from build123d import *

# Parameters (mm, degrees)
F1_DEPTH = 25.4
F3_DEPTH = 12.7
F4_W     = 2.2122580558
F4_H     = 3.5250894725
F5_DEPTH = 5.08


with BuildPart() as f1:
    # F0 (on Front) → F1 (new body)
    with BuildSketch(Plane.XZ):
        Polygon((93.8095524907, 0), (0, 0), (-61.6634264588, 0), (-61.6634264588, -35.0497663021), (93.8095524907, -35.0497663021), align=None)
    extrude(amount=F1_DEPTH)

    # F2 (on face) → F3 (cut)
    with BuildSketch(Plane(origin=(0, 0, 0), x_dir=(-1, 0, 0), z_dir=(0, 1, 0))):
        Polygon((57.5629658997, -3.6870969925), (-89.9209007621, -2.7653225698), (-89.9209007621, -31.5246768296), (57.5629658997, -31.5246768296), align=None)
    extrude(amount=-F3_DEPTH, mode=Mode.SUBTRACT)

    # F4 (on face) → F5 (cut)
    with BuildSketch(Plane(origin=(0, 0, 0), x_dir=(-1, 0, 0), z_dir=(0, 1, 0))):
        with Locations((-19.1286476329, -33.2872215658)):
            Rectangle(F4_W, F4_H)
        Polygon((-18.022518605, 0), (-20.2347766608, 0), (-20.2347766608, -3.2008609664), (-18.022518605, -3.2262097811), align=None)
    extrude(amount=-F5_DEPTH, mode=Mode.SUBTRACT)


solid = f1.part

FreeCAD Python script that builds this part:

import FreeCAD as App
import Part
import Sketcher
Q = App.Units.Quantity

doc = App.newDocument("Part")
body = doc.addObject("PartDesign::Body", "Body")

sketch1 = body.newObject("Sketcher::SketchObject", "Sketch")
sketch1.AttachmentSupport = (doc.getObject("XZ_Plane"), [""])
sketch1.MapMode = "FlatFace"
sketch1.addGeometry([
    Part.LineSegment(App.Vector(94, 0, 0), App.Vector(-62, 0, 0)),
    Part.LineSegment(App.Vector(-62, 0, 0), App.Vector(-62, -35, 0)),
    Part.LineSegment(App.Vector(-62, -35, 0), App.Vector(94, -35, 0)),
    Part.LineSegment(App.Vector(94, -35, 0), App.Vector(94, 0, 0)),
], False)
sketch1.addConstraint([
    Sketcher.Constraint("Coincident", 0, 2, 1, 1),
    Sketcher.Constraint("Coincident", 1, 2, 2, 1),
    Sketcher.Constraint("Coincident", 2, 2, 3, 1),
    Sketcher.Constraint("Coincident", 3, 2, 0, 1),
    Sketcher.Constraint("Horizontal", 0),
    Sketcher.Constraint("Vertical", 1),
    Sketcher.Constraint("Horizontal", 2),
    Sketcher.Constraint("Vertical", 3),
    Sketcher.Constraint("PointOnObject", 0, 2, -1),
    Sketcher.Constraint("DistanceX", 0, 2, 0, 1, 155.472979),
    Sketcher.Constraint("DistanceY", 1, 2, 1, 1, 35.049766),
    Sketcher.Constraint("DistanceX", 0, 2, -1, 1, 61.663426),
])
pad1 = body.newObject("PartDesign::Pad", "Pad")
pad1.Profile = sketch1
pad1.Length = Q("1 in")

sketch2 = body.newObject("Sketcher::SketchObject", "Sketch001")
sketch2.AttachmentSupport = (doc.getObject("XZ_Plane"), [""])
sketch2.MapMode = "FlatFace"
sketch2.addGeometry([
    Part.LineSegment(App.Vector(-58, -4, 0), App.Vector(90, -3, 0)),
    Part.LineSegment(App.Vector(90, -3, 0), App.Vector(90, -32, 0)),
    Part.LineSegment(App.Vector(90, -32, 0), App.Vector(-58, -32, 0)),
    Part.LineSegment(App.Vector(-58, -32, 0), App.Vector(-58, -4, 0)),
], False)
sketch2.addConstraint([
    Sketcher.Constraint("Coincident", 0, 2, 1, 1),
    Sketcher.Constraint("Coincident", 1, 2, 2, 1),
    Sketcher.Constraint("Coincident", 2, 2, 3, 1),
    Sketcher.Constraint("Coincident", 3, 2, 0, 1),
    Sketcher.Constraint("Vertical", 1),
    Sketcher.Constraint("Horizontal", 2),
    Sketcher.Constraint("Vertical", 3),
    Sketcher.Constraint("DistanceY", 3, 1, 3, 2, 27.83758),
    Sketcher.Constraint("DistanceX", -1, 1, 0, 2, 89.920901),
    Sketcher.Constraint("DistanceX", 2, 2, 2, 1, 147.483867),
    Sketcher.Constraint("DistanceY", 1, 2, 1, 1, 28.759354),
    Sketcher.Constraint("DistanceY", 0, 2, -1, 1, 2.765323),
])
pocket1 = body.newObject("PartDesign::Pocket", "Pocket")
pocket1.Profile = sketch2
pocket1.Length = Q("0.5 in")
pocket1.Reversed = True

sketch3 = body.newObject("Sketcher::SketchObject", "Sketch002")
sketch3.AttachmentSupport = (doc.getObject("XZ_Plane"), [""])
sketch3.MapMode = "FlatFace"
sketch3.addGeometry([
    Part.LineSegment(App.Vector(20.2, -31.5, 0), App.Vector(20.2, -35, 0)),
    Part.LineSegment(App.Vector(20.2, -35, 0), App.Vector(18, -35, 0)),
    Part.LineSegment(App.Vector(18, -35, 0), App.Vector(18, -31.5, 0)),
    Part.LineSegment(App.Vector(18, -31.5, 0), App.Vector(20.2, -31.5, 0)),
    Part.LineSegment(App.Vector(18, 0, 0), App.Vector(20.2, 0, 0)),
    Part.LineSegment(App.Vector(20.2, 0, 0), App.Vector(20.2, -3.2, 0)),
    Part.LineSegment(App.Vector(20.2, -3.2, 0), App.Vector(18, -3.2, 0)),
    Part.LineSegment(App.Vector(18, -3.2, 0), App.Vector(18, 0, 0)),
], False)
sketch3.addConstraint([
    Sketcher.Constraint("Coincident", 0, 2, 1, 1),
    Sketcher.Constraint("Coincident", 1, 2, 2, 1),
    Sketcher.Constraint("Coincident", 2, 2, 3, 1),
    Sketcher.Constraint("Coincident", 3, 2, 0, 1),
    Sketcher.Constraint("Coincident", 4, 2, 5, 1),
    Sketcher.Constraint("Coincident", 5, 2, 6, 1),
    Sketcher.Constraint("Coincident", 6, 2, 7, 1),
    Sketcher.Constraint("Coincident", 7, 2, 4, 1),
    Sketcher.Constraint("Vertical", 0),
    Sketcher.Constraint("Horizontal", 1),
    Sketcher.Constraint("Vertical", 2),
    Sketcher.Constraint("Horizontal", 3),
    Sketcher.Constraint("Horizontal", 4),
    Sketcher.Constraint("Vertical", 5),
    Sketcher.Constraint("Vertical", 7),
    Sketcher.Constraint("PointOnObject", 4, 2, -1),
    Sketcher.Constraint("Vertical", 3, 2, 4, 2),
    Sketcher.Constraint("Vertical", 2, 2, 6, 2),
    Sketcher.Constraint("DistanceX", 1, 2, 1, 1, 2.212258),
    Sketcher.Constraint("DistanceY", 0, 2, 0, 1, 3.525089),
    Sketcher.Constraint("DistanceY", 5, 2, 5, 1, 3.200861),
    Sketcher.Constraint("DistanceY", 7, 1, 7, 2, 3.22621),
    Sketcher.Constraint("DistanceX", -1, 1, 1, 2, 18.022519),
    Sketcher.Constraint("DistanceY", 0, 2, -1, 1, 35.049766),
])
pocket2 = body.newObject("PartDesign::Pocket", "Pocket001")
pocket2.Profile = sketch3
pocket2.Length = Q("0.2 in")
pocket2.Reversed = True

doc.recompute()
